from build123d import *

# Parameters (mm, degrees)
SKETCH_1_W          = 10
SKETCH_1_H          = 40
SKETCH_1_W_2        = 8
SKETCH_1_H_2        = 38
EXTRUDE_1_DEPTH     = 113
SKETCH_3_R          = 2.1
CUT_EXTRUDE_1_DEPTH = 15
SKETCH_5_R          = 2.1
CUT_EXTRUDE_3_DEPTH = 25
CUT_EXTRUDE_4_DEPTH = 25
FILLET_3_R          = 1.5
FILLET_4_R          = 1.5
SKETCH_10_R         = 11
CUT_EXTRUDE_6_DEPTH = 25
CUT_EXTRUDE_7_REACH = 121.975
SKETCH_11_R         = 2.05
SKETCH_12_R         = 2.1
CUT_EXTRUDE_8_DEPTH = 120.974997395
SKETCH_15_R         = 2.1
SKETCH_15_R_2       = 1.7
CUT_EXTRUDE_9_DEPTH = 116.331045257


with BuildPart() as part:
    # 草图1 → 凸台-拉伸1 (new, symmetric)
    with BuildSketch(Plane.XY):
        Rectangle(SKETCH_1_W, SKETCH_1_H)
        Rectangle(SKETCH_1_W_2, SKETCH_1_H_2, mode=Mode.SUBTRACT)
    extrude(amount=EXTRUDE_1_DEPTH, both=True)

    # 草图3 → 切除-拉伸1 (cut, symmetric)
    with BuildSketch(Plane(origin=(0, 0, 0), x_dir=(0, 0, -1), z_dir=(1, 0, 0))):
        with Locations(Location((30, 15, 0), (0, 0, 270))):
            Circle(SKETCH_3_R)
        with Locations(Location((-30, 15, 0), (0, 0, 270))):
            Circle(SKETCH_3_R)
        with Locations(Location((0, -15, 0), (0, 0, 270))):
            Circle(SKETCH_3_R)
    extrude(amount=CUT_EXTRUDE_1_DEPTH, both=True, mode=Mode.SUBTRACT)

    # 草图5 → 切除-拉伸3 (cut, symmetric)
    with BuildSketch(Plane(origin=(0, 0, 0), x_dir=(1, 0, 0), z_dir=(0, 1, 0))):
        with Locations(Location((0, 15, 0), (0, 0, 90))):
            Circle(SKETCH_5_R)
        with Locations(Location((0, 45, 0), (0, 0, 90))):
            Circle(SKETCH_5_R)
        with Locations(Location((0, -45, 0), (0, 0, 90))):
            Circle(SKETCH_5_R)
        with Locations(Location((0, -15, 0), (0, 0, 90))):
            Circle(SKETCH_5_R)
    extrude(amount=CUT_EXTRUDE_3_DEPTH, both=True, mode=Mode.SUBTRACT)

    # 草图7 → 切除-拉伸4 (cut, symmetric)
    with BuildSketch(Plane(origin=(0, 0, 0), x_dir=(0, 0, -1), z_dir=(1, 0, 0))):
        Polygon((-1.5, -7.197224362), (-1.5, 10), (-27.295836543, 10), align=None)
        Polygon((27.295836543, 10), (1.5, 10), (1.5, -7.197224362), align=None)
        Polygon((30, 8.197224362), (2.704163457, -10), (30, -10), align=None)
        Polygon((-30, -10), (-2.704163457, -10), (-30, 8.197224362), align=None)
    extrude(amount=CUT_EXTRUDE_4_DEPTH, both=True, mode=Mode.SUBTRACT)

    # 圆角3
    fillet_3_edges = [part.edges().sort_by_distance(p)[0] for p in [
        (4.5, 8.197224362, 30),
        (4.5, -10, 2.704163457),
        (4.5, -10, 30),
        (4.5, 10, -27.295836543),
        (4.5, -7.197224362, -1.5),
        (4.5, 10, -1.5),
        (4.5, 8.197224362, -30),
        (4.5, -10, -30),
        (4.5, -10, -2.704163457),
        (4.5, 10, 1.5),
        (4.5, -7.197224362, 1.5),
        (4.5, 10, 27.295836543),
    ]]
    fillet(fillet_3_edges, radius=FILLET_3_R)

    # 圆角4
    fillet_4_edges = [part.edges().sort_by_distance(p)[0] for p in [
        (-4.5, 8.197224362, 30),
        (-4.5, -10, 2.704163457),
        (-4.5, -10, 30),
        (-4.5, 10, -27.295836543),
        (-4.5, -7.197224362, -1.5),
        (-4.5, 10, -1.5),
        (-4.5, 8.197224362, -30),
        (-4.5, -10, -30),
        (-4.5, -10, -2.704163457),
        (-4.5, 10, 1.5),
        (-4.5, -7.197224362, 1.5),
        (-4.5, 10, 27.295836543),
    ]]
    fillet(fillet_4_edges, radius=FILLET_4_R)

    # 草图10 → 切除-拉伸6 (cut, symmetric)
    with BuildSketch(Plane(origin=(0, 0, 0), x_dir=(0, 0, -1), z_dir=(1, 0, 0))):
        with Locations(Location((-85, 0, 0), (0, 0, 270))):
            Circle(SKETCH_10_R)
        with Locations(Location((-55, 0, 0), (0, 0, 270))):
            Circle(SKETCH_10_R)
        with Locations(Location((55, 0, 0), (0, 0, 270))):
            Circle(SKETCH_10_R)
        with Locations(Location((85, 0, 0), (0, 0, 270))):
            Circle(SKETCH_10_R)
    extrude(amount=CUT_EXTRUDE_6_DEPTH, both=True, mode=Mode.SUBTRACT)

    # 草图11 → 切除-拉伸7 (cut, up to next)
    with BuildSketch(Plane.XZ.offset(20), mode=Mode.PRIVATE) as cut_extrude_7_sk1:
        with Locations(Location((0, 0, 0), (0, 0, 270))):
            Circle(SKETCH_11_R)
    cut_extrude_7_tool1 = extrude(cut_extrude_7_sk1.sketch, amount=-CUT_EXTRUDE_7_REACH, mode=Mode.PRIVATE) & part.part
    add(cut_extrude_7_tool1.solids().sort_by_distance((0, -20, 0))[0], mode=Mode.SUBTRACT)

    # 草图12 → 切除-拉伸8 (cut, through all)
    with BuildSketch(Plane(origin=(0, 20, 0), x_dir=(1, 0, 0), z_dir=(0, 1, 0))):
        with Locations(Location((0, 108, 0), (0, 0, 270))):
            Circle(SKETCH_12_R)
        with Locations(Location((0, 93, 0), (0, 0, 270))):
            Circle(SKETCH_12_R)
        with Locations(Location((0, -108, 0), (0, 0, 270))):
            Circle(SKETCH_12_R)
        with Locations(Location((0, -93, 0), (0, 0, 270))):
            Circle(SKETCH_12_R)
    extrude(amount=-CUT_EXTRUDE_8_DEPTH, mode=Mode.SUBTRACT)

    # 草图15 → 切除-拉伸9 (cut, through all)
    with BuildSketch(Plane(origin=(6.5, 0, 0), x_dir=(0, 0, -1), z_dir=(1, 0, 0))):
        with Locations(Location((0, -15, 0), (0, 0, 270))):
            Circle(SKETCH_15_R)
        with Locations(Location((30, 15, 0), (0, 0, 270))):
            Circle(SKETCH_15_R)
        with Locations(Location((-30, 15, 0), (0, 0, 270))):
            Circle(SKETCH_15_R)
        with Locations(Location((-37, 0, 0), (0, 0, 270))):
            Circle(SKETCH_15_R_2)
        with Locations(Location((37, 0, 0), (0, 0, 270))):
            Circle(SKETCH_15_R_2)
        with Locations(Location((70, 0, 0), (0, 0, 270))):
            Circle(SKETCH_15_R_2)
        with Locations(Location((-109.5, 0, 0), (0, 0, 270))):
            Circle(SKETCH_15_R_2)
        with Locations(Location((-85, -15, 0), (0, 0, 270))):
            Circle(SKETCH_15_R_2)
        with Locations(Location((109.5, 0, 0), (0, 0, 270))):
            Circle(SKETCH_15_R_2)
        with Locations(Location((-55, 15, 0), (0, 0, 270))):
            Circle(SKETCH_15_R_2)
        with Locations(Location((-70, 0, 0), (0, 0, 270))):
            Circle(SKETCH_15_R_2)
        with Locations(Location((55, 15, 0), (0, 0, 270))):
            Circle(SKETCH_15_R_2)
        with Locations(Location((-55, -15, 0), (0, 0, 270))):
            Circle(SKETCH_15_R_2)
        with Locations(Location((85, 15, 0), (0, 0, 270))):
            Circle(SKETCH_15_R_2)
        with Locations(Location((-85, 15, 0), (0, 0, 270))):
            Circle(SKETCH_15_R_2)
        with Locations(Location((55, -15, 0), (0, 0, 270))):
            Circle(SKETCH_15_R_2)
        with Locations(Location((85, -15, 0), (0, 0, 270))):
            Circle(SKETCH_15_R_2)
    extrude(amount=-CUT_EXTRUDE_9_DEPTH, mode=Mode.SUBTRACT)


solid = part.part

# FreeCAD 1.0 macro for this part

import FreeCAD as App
import Part
import Sketcher
Q = App.Units.Quantity


def edges_at(feature, points):
    """Names of the edges that pass closest to the given points."""
    edges = feature.Shape.Edges
    near = lambda p: min(range(len(edges)), key=lambda i: edges[i].distToShape(Part.Vertex(*p))[0])
    return sorted({f"Edge{near(p) + 1}" for p in points})

doc = App.newDocument("Part")
params = doc.addObject("Spreadsheet::Sheet", "Params")
for row, (alias, value) in enumerate([
    ("sketch1_width", "10 mm"),
    ("sketch1_width2", "8 mm"),
    ("sketch1_height", "40 mm"),
    ("sketch1_height2", "38 mm"),
    ("pad1_length", "226 mm"),
    ("sketch2_diameter", "4.2 mm"),
    ("pocket1_length", "30 mm"),
    ("sketch3_diameter", "4.2 mm"),
    ("pocket2_length", "50 mm"),
    ("pocket3_length", "50 mm"),
    ("fillet_radius", "1.5 mm"),
    ("fillet2_radius", "1.5 mm"),
    ("sketch5_diameter", "22 mm"),
    ("pocket4_length", "50 mm"),
    ("sketch6_diameter", "4.1 mm"),
    ("sketch7_diameter", "4.2 mm"),
    ("sketch8_diameter", "4.2 mm"),
    ("sketch8_diameter2", "3.4 mm"),
], start=1):
    params.set(f"A{row}", alias)
    params.set(f"B{row}", "=" + value)
    params.setAlias(f"B{row}", alias)

body = doc.addObject("PartDesign::Body", "Body")

# Sketch on XY plane
sketch1 = doc.addObject("Sketcher::SketchObject", "Sketch")
body.addObject(sketch1)
sketch1.AttachmentSupport = (doc.XY_Plane, [""])
sketch1.MapMode = "FlatFace"
sketch1.addGeometry(Part.LineSegment(App.Vector(-5, 20, 0), App.Vector(-5, -20, 0)), False)
sketch1.addGeometry(Part.LineSegment(App.Vector(-5, -20, 0), App.Vector(5, -20, 0)), False)
sketch1.addGeometry(Part.LineSegment(App.Vector(5, -20, 0), App.Vector(5, 20, 0)), False)
sketch1.addGeometry(Part.LineSegment(App.Vector(5, 20, 0), App.Vector(-5, 20, 0)), False)
sketch1.addGeometry(Part.LineSegment(App.Vector(4, -19, 0), App.Vector(-4, -19, 0)), False)
sketch1.addGeometry(Part.LineSegment(App.Vector(-4, -19, 0), App.Vector(-4, 19, 0)), False)
sketch1.addGeometry(Part.LineSegment(App.Vector(-4, 19, 0), App.Vector(4, 19, 0)), False)
sketch1.addGeometry(Part.LineSegment(App.Vector(4, 19, 0), App.Vector(4, -19, 0)), False)
sketch1.addConstraint(Sketcher.Constraint("Coincident", 0, 2, 1, 1))
sketch1.addConstraint(Sketcher.Constraint("Coincident", 1, 2, 2, 1))
sketch1.addConstraint(Sketcher.Constraint("Coincident", 2, 2, 3, 1))
sketch1.addConstraint(Sketcher.Constraint("Coincident", 3, 2, 0, 1))
sketch1.addConstraint(Sketcher.Constraint("Coincident", 4, 2, 5, 1))
sketch1.addConstraint(Sketcher.Constraint("Coincident", 5, 2, 6, 1))
sketch1.addConstraint(Sketcher.Constraint("Coincident", 6, 2, 7, 1))
sketch1.addConstraint(Sketcher.Constraint("Coincident", 7, 2, 4, 1))
sketch1.addConstraint(Sketcher.Constraint("Vertical", 0))
sketch1.addConstraint(Sketcher.Constraint("Horizontal", 1))
sketch1.addConstraint(Sketcher.Constraint("Vertical", 2))
sketch1.addConstraint(Sketcher.Constraint("Horizontal", 3))
sketch1.addConstraint(Sketcher.Constraint("Horizontal", 4))
sketch1.addConstraint(Sketcher.Constraint("Vertical", 5))
sketch1.addConstraint(Sketcher.Constraint("Horizontal", 6))
sketch1.addConstraint(Sketcher.Constraint("Vertical", 7))
sketch1.addConstraint(Sketcher.Constraint("Symmetric", 0, 2, 2, 2, -1, 1))
sketch1.addConstraint(Sketcher.Constraint("Symmetric", 4, 2, 6, 2, -1, 1))
sketch1.addConstraint(Sketcher.Constraint("DistanceX", 1, 1, 1, 2, Q("10 mm")))
sketch1.addConstraint(Sketcher.Constraint("DistanceX", 4, 2, 4, 1, Q("8 mm")))
sketch1.addConstraint(Sketcher.Constraint("DistanceY", 0, 2, 0, 1, Q("40 mm")))
sketch1.addConstraint(Sketcher.Constraint("DistanceY", 5, 1, 5, 2, Q("38 mm")))
sketch1.setExpression("Constraints[18]", "Params.sketch1_width")
sketch1.setExpression("Constraints[19]", "Params.sketch1_width2")
sketch1.setExpression("Constraints[20]", "Params.sketch1_height")
sketch1.setExpression("Constraints[21]", "Params.sketch1_height2")
pad1 = doc.addObject("PartDesign::Pad", "Pad")
body.addObject(pad1)
pad1.Profile = sketch1
pad1.setExpression("Length", "Params.pad1_length")
pad1.Midplane = True

# Sketch on YZ plane
sketch2 = doc.addObject("Sketcher::SketchObject", "Sketch001")
body.addObject(sketch2)
sketch2.AttachmentSupport = (doc.YZ_Plane, [""])
sketch2.MapMode = "FlatFace"
sketch2.addGeometry(Part.Circle(App.Vector(15, -30, 0), App.Vector(0, 0, 1), 2.1), False)
sketch2.addGeometry(Part.Circle(App.Vector(15, 30, 0), App.Vector(0, 0, 1), 2.1), False)
sketch2.addGeometry(Part.Circle(App.Vector(-15, 0, 0), App.Vector(0, 0, 1), 2.1), False)
sketch2.addConstraint(Sketcher.Constraint("Equal", 0, 1))
sketch2.addConstraint(Sketcher.Constraint("Equal", 1, 2))
sketch2.addConstraint(Sketcher.Constraint("Symmetric", 0, 3, 1, 3, -1))
sketch2.addConstraint(Sketcher.Constraint("PointOnObject", 2, 3, -1))
sketch2.addConstraint(Sketcher.Constraint("Diameter", 0, Q("4.2 mm")))
sketch2.addConstraint(Sketcher.Constraint("DistanceX", -1, 1, 0, 3, Q("15 mm")))
sketch2.addConstraint(Sketcher.Constraint("DistanceY", 0, 3, -1, 1, Q("30 mm")))
sketch2.addConstraint(Sketcher.Constraint("DistanceX", 2, 3, -1, 1, Q("15 mm")))
sketch2.setExpression("Constraints[4]", "Params.sketch2_diameter")
pocket1 = doc.addObject("PartDesign::Pocket", "Pocket")
body.addObject(pocket1)
pocket1.Profile = sketch2
pocket1.setExpression("Length", "Params.pocket1_length")
pocket1.Midplane = True

# Sketch on XZ plane
sketch3 = doc.addObject("Sketcher::SketchObject", "Sketch002")
body.addObject(sketch3)
sketch3.AttachmentSupport = (doc.XZ_Plane, [""])
sketch3.MapMode = "FlatFace"
sketch3.addGeometry(Part.Circle(App.Vector(0, -15, 0), App.Vector(0, 0, 1), 2.1), False)
sketch3.addGeometry(Part.Circle(App.Vector(0, -45, 0), App.Vector(0, 0, 1), 2.1), False)
sketch3.addGeometry(Part.Circle(App.Vector(0, 45, 0), App.Vector(0, 0, 1), 2.1), False)
sketch3.addGeometry(Part.Circle(App.Vector(0, 15, 0), App.Vector(0, 0, 1), 2.1), False)
sketch3.addConstraint(Sketcher.Constraint("Equal", 0, 1))
sketch3.addConstraint(Sketcher.Constraint("Equal", 1, 2))
sketch3.addConstraint(Sketcher.Constraint("Equal", 2, 3))
sketch3.addConstraint(Sketcher.Constraint("Symmetric", 1, 3, 2, 3, -1, 1))
sketch3.addConstraint(Sketcher.Constraint("Symmetric", 0, 3, 3, 3, -1, 1))
sketch3.addConstraint(Sketcher.Constraint("PointOnObject", 0, 3, -2))
sketch3.addConstraint(Sketcher.Constraint("PointOnObject", 1, 3, -2))
sketch3.addConstraint(Sketcher.Constraint("Diameter", 0, Q("4.2 mm")))
sketch3.addConstraint(Sketcher.Constraint("DistanceY", 0, 3, -1, 1, Q("15 mm")))
sketch3.addConstraint(Sketcher.Constraint("DistanceY", 1, 3, -1, 1, Q("45 mm")))
sketch3.setExpression("Constraints[7]", "Params.sketch3_diameter")
pocket2 = doc.addObject("PartDesign::Pocket", "Pocket001")
body.addObject(pocket2)
pocket2.Profile = sketch3
pocket2.setExpression("Length", "Params.pocket2_length")
pocket2.Midplane = True

# Sketch on YZ plane
sketch4 = doc.addObject("Sketcher::SketchObject", "Sketch003")
body.addObject(sketch4)
sketch4.AttachmentSupport = (doc.YZ_Plane, [""])
sketch4.MapMode = "FlatFace"
sketch4.addGeometry(Part.LineSegment(App.Vector(-7, 2, 0), App.Vector(10, 2, 0)), False)
sketch4.addGeometry(Part.LineSegment(App.Vector(10, 2, 0), App.Vector(10, 27, 0)), False)
sketch4.addGeometry(Part.LineSegment(App.Vector(10, 27, 0), App.Vector(-7, 2, 0)), False)
sketch4.addGeometry(Part.LineSegment(App.Vector(10, -27, 0), App.Vector(10, -2, 0)), False)
sketch4.addGeometry(Part.LineSegment(App.Vector(10, -2, 0), App.Vector(-7, -2, 0)), False)
sketch4.addGeometry(Part.LineSegment(App.Vector(-7, -2, 0), App.Vector(10, -27, 0)), False)
sketch4.addGeometry(Part.LineSegment(App.Vector(8, -30, 0), App.Vector(-10, -3, 0)), False)
sketch4.addGeometry(Part.LineSegment(App.Vector(-10, -3, 0), App.Vector(-10, -30, 0)), False)
sketch4.addGeometry(Part.LineSegment(App.Vector(-10, -30, 0), App.Vector(8, -30, 0)), False)
sketch4.addGeometry(Part.LineSegment(App.Vector(-10, 30, 0), App.Vector(-10, 3, 0)), False)
sketch4.addGeometry(Part.LineSegment(App.Vector(-10, 3, 0), App.Vector(8, 30, 0)), False)
sketch4.addGeometry(Part.LineSegment(App.Vector(8, 30, 0), App.Vector(-10, 30, 0)), False)
sketch4.addConstraint(Sketcher.Constraint("Coincident", 0, 2, 1, 1))
sketch4.addConstraint(Sketcher.Constraint("Coincident", 1, 2, 2, 1))
sketch4.addConstraint(Sketcher.Constraint("Coincident", 2, 2, 0, 1))
sketch4.addConstraint(Sketcher.Constraint("Coincident", 3, 2, 4, 1))
sketch4.addConstraint(Sketcher.Constraint("Coincident", 4, 2, 5, 1))
sketch4.addConstraint(Sketcher.Constraint("Coincident", 5, 2, 3, 1))
sketch4.addConstraint(Sketcher.Constraint("Coincident", 6, 2, 7, 1))
sketch4.addConstraint(Sketcher.Constraint("Coincident", 7, 2, 8, 1))
sketch4.addConstraint(Sketcher.Constraint("Coincident", 8, 2, 6, 1))
sketch4.addConstraint(Sketcher.Constraint("Coincident", 9, 2, 10, 1))
sketch4.addConstraint(Sketcher.Constraint("Coincident", 10, 2, 11, 1))
sketch4.addConstraint(Sketcher.Constraint("Coincident", 11, 2, 9, 1))
sketch4.addConstraint(Sketcher.Constraint("Horizontal", 0))
sketch4.addConstraint(Sketcher.Constraint("Vertical", 1))
sketch4.addConstraint(Sketcher.Constraint("Vertical", 3))
sketch4.addConstraint(Sketcher.Constraint("Horizontal", 4))
sketch4.addConstraint(Sketcher.Constraint("Vertical", 7))
sketch4.addConstraint(Sketcher.Constraint("Horizontal", 8))
sketch4.addConstraint(Sketcher.Constraint("Vertical", 9))
sketch4.addConstraint(Sketcher.Constraint("Horizontal", 11))
sketch4.addConstraint(Sketcher.Constraint("Symmetric", 0, 2, 3, 2, -1))
sketch4.addConstraint(Sketcher.Constraint("Symmetric", 6, 2, 9, 2, -1))
sketch4.addConstraint(Sketcher.Constraint("Symmetric", 8, 2, 10, 2, -1))
sketch4.addConstraint(Sketcher.Constraint("Parallel", 5, 6))
sketch4.addConstraint(Sketcher.Constraint("Parallel", 2, 10))
sketch4.addConstraint(Sketcher.Constraint("Vertical", 2, 2, 4, 2))
sketch4.addConstraint(Sketcher.Constraint("DistanceX", -1, 1, 0, 2, Q("10 mm")))
sketch4.addConstraint(Sketcher.Constraint("DistanceX", 6, 2, -1, 1, Q("10 mm")))
sketch4.addConstraint(Sketcher.Constraint("DistanceY", 7, 2, -1, 1, Q("30 mm")))
sketch4.addConstraint(Sketcher.Constraint("DistanceY", 3, 2, 0, 2, Q("3 mm")))
sketch4.addConstraint(Sketcher.Constraint("DistanceX", 0, 1, 0, 2, Q("17.197224 mm")))
sketch4.addConstraint(Sketcher.Constraint("DistanceX", 8, 1, 8, 2, Q("18.197224 mm")))
sketch4.addConstraint(Sketcher.Constraint("DistanceY", 1, 1, 1, 2, Q("25.795837 mm")))
pocket3 = doc.addObject("PartDesign::Pocket", "Pocket002")
body.addObject(pocket3)
pocket3.Profile = sketch4
pocket3.setExpression("Length", "Params.pocket3_length")
pocket3.Midplane = True
doc.recompute()

fillet = doc.addObject("PartDesign::Fillet", "Fillet")
body.addObject(fillet)
fillet.Base = (pocket3, edges_at(pocket3, [
    (4.5, 8.197, 30),
    (4.5, -10, 2.704),
    (4.5, -10, 30),
    (4.5, 10, -27.296),
    (4.5, -7.197, -1.5),
    (4.5, 10, -1.5),
    (4.5, 8.197, -30),
    (4.5, -10, -30),
    (4.5, -10, -2.704),
    (4.5, 10, 1.5),
    (4.5, -7.197, 1.5),
    (4.5, 10, 27.296),
]))
fillet.setExpression("Radius", "Params.fillet_radius")
doc.recompute()

fillet2 = doc.addObject("PartDesign::Fillet", "Fillet001")
body.addObject(fillet2)
fillet2.Base = (fillet, edges_at(fillet, [
    (-4.5, 8.197, 30),
    (-4.5, -10, 2.704),
    (-4.5, -10, 30),
    (-4.5, 10, -27.296),
    (-4.5, -7.197, -1.5),
    (-4.5, 10, -1.5),
    (-4.5, 8.197, -30),
    (-4.5, -10, -30),
    (-4.5, -10, -2.704),
    (-4.5, 10, 1.5),
    (-4.5, -7.197, 1.5),
    (-4.5, 10, 27.296),
]))
fillet2.setExpression("Radius", "Params.fillet2_radius")

# Sketch on YZ plane
sketch5 = doc.addObject("Sketcher::SketchObject", "Sketch004")
body.addObject(sketch5)
sketch5.AttachmentSupport = (doc.YZ_Plane, [""])
sketch5.MapMode = "FlatFace"
sketch5.addGeometry(Part.Circle(App.Vector(0, 85, 0), App.Vector(0, 0, 1), 11), False)
sketch5.addGeometry(Part.Circle(App.Vector(0, 55, 0), App.Vector(0, 0, 1), 11), False)
sketch5.addGeometry(Part.Circle(App.Vector(0, -55, 0), App.Vector(0, 0, 1), 11), False)
sketch5.addGeometry(Part.Circle(App.Vector(0, -85, 0), App.Vector(0, 0, 1), 11), False)
sketch5.addConstraint(Sketcher.Constraint("Equal", 0, 1))
sketch5.addConstraint(Sketcher.Constraint("Equal", 1, 2))
sketch5.addConstraint(Sketcher.Constraint("Equal", 2, 3))
sketch5.addConstraint(Sketcher.Constraint("Symmetric", 1, 3, 2, 3, -1, 1))
sketch5.addConstraint(Sketcher.Constraint("Symmetric", 0, 3, 3, 3, -1, 1))
sketch5.addConstraint(Sketcher.Constraint("PointOnObject", 0, 3, -2))
sketch5.addConstraint(Sketcher.Constraint("PointOnObject", 1, 3, -2))
sketch5.addConstraint(Sketcher.Constraint("Diameter", 0, Q("22 mm")))
sketch5.addConstraint(Sketcher.Constraint("DistanceY", -1, 1, 0, 3, Q("85 mm")))
sketch5.addConstraint(Sketcher.Constraint("DistanceY", -1, 1, 1, 3, Q("55 mm")))
sketch5.setExpression("Constraints[7]", "Params.sketch5_diameter")
pocket4 = doc.addObject("PartDesign::Pocket", "Pocket003")
body.addObject(pocket4)
pocket4.Profile = sketch5
pocket4.setExpression("Length", "Params.pocket4_length")
pocket4.Midplane = True

# Sketch on XZ plane
sketch6 = doc.addObject("Sketcher::SketchObject", "Sketch005")
body.addObject(sketch6)
sketch6.AttachmentSupport = (doc.XZ_Plane, [""])
sketch6.MapMode = "FlatFace"
sketch6.AttachmentOffset = App.Placement(App.Vector(0, 0, 20), App.Rotation())
sketch6.addGeometry(Part.Circle(App.Vector(0, 0, 0), App.Vector(0, 0, 1), 2), False)
sketch6.addConstraint(Sketcher.Constraint("Coincident", 0, 3, -1, 1))
sketch6.addConstraint(Sketcher.Constraint("Diameter", 0, Q("4.1 mm")))
sketch6.setExpression("Constraints[1]", "Params.sketch6_diameter")
pocket5 = doc.addObject("PartDesign::Pocket", "Pocket004")
body.addObject(pocket5)
pocket5.Profile = sketch6
pocket5.Type = "UpToFirst"

# Sketch on XZ plane
sketch7 = doc.addObject("Sketcher::SketchObject", "Sketch006")
body.addObject(sketch7)
sketch7.AttachmentSupport = (doc.XZ_Plane, [""])
sketch7.MapMode = "FlatFace"
sketch7.AttachmentOffset = App.Placement(App.Vector(0, 0, -20), App.Rotation())
sketch7.addGeometry(Part.Circle(App.Vector(0, -108, 0), App.Vector(0, 0, 1), 2.1), False)
sketch7.addGeometry(Part.Circle(App.Vector(0, -93, 0), App.Vector(0, 0, 1), 2.1), False)
sketch7.addGeometry(Part.Circle(App.Vector(0, 108, 0), App.Vector(0, 0, 1), 2.1), False)
sketch7.addGeometry(Part.Circle(App.Vector(0, 93, 0), App.Vector(0, 0, 1), 2.1), False)
sketch7.addConstraint(Sketcher.Constraint("Equal", 0, 1))
sketch7.addConstraint(Sketcher.Constraint("Equal", 1, 2))
sketch7.addConstraint(Sketcher.Constraint("Equal", 2, 3))
sketch7.addConstraint(Sketcher.Constraint("Symmetric", 0, 3, 2, 3, -1, 1))
sketch7.addConstraint(Sketcher.Constraint("Symmetric", 1, 3, 3, 3, -1, 1))
sketch7.addConstraint(Sketcher.Constraint("PointOnObject", 0, 3, -2))
sketch7.addConstraint(Sketcher.Constraint("PointOnObject", 1, 3, -2))
sketch7.addConstraint(Sketcher.Constraint("Diameter", 0, Q("4.2 mm")))
sketch7.addConstraint(Sketcher.Constraint("DistanceY", 0, 3, -1, 1, Q("108 mm")))
sketch7.addConstraint(Sketcher.Constraint("DistanceY", 1, 3, -1, 1, Q("93 mm")))
sketch7.setExpression("Constraints[7]", "Params.sketch7_diameter")
pocket6 = doc.addObject("PartDesign::Pocket", "Pocket005")
body.addObject(pocket6)
pocket6.Profile = sketch7
pocket6.Type = "ThroughAll"
pocket6.Reversed = True

# Sketch on YZ plane
sketch8 = doc.addObject("Sketcher::SketchObject", "Sketch007")
body.addObject(sketch8)
sketch8.AttachmentSupport = (doc.YZ_Plane, [""])
sketch8.MapMode = "FlatFace"
sketch8.AttachmentOffset = App.Placement(App.Vector(0, 0, 6.5), App.Rotation())
sketch8.addGeometry(Part.Circle(App.Vector(-15, 0, 0), App.Vector(0, 0, 1), 2.1), False)
sketch8.addGeometry(Part.Circle(App.Vector(15, -30, 0), App.Vector(0, 0, 1), 2.1), False)
sketch8.addGeometry(Part.Circle(App.Vector(15, 30, 0), App.Vector(0, 0, 1), 2.1), False)
sketch8.addGeometry(Part.Circle(App.Vector(0, 37, 0), App.Vector(0, 0, 1), 1.7), False)
sketch8.addGeometry(Part.Circle(App.Vector(0, -37, 0), App.Vector(0, 0, 1), 1.7), False)
sketch8.addGeometry(Part.Circle(App.Vector(0, -70, 0), App.Vector(0, 0, 1), 1.7), False)
sketch8.addGeometry(Part.Circle(App.Vector(0, 109.5, 0), App.Vector(0, 0, 1), 1.7), False)
sketch8.addGeometry(Part.Circle(App.Vector(-15, 85, 0), App.Vector(0, 0, 1), 1.7), False)
sketch8.addGeometry(Part.Circle(App.Vector(0, -109.5, 0), App.Vector(0, 0, 1), 1.7), False)
sketch8.addGeometry(Part.Circle(App.Vector(15, 55, 0), App.Vector(0, 0, 1), 1.7), False)
sketch8.addGeometry(Part.Circle(App.Vector(0, 70, 0), App.Vector(0, 0, 1), 1.7), False)
sketch8.addGeometry(Part.Circle(App.Vector(15, -55, 0), App.Vector(0, 0, 1), 1.7), False)
sketch8.addGeometry(Part.Circle(App.Vector(-15, 55, 0), App.Vector(0, 0, 1), 1.7), False)
sketch8.addGeometry(Part.Circle(App.Vector(15, -85, 0), App.Vector(0, 0, 1), 1.7), False)
sketch8.addGeometry(Part.Circle(App.Vector(15, 85, 0), App.Vector(0, 0, 1), 1.7), False)
sketch8.addGeometry(Part.Circle(App.Vector(-15, -55, 0), App.Vector(0, 0, 1), 1.7), False)
sketch8.addGeometry(Part.Circle(App.Vector(-15, -85, 0), App.Vector(0, 0, 1), 1.7), False)
sketch8.addConstraint(Sketcher.Constraint("Equal", 0, 1))
sketch8.addConstraint(Sketcher.Constraint("Equal", 1, 2))
sketch8.addConstraint(Sketcher.Constraint("Equal", 3, 4))
sketch8.addConstraint(Sketcher.Constraint("Equal", 4, 5))
sketch8.addConstraint(Sketcher.Constraint("Equal", 5, 6))
sketch8.addConstraint(Sketcher.Constraint("Equal", 6, 7))
sketch8.addConstraint(Sketcher.Constraint("Equal", 7, 8))
sketch8.addConstraint(Sketcher.Constraint("Equal", 8, 9))
sketch8.addConstraint(Sketcher.Constraint("Equal", 9, 10))
sketch8.addConstraint(Sketcher.Constraint("Equal", 10, 11))
sketch8.addConstraint(Sketcher.Constraint("Equal", 11, 12))
sketch8.addConstraint(Sketcher.Constraint("Equal", 12, 13))
sketch8.addConstraint(Sketcher.Constraint("Equal", 13, 14))
sketch8.addConstraint(Sketcher.Constraint("Equal", 14, 15))
sketch8.addConstraint(Sketcher.Constraint("Equal", 15, 16))
sketch8.addConstraint(Sketcher.Constraint("Symmetric", 3, 3, 4, 3, -1, 1))
sketch8.addConstraint(Sketcher.Constraint("Symmetric", 6, 3, 8, 3, -1, 1))
sketch8.addConstraint(Sketcher.Constraint("Symmetric", 5, 3, 10, 3, -1, 1))
sketch8.addConstraint(Sketcher.Constraint("Symmetric", 11, 3, 12, 3, -1, 1))
sketch8.addConstraint(Sketcher.Constraint("Symmetric", 7, 3, 13, 3, -1, 1))
sketch8.addConstraint(Sketcher.Constraint("Symmetric", 9, 3, 15, 3, -1, 1))
sketch8.addConstraint(Sketcher.Constraint("Symmetric", 14, 3, 16, 3, -1, 1))
sketch8.addConstraint(Sketcher.Constraint("Symmetric", 9, 3, 12, 3, -2))
sketch8.addConstraint(Sketcher.Constraint("Symmetric", 7, 3, 14, 3, -2))
sketch8.addConstraint(Sketcher.Constraint("Symmetric", 1, 3, 2, 3, -1))
sketch8.addConstraint(Sketcher.Constraint("PointOnObject", 0, 3, -1))
sketch8.addConstraint(Sketcher.Constraint("PointOnObject", 3, 3, -2))
sketch8.addConstraint(Sketcher.Constraint("PointOnObject", 5, 3, -2))
sketch8.addConstraint(Sketcher.Constraint("PointOnObject", 6, 3, -2))
sketch8.addConstraint(Sketcher.Constraint("Vertical", 0, 3, 7, 3))
sketch8.addConstraint(Sketcher.Constraint("Vertical", 2, 3, 9, 3))
sketch8.addConstraint(Sketcher.Constraint("Vertical", 7, 3, 12, 3))
sketch8.addConstraint(Sketcher.Constraint("Diameter", 0, Q("4.2 mm")))
sketch8.addConstraint(Sketcher.Constraint("Diameter", 3, Q("3.4 mm")))
sketch8.addConstraint(Sketcher.Constraint("DistanceX", 0, 3, -1, 1, Q("15 mm")))
sketch8.addConstraint(Sketcher.Constraint("DistanceY", 1, 3, -1, 1, Q("30 mm")))
sketch8.addConstraint(Sketcher.Constraint("DistanceY", -1, 1, 3, 3, Q("37 mm")))
sketch8.addConstraint(Sketcher.Constraint("DistanceY", 5, 3, -1, 1, Q("70 mm")))
sketch8.addConstraint(Sketcher.Constraint("DistanceY", -1, 1, 7, 3, Q("85 mm")))
sketch8.addConstraint(Sketcher.Constraint("DistanceY", -1, 1, 9, 3, Q("55 mm")))
sketch8.addConstraint(Sketcher.Constraint("DistanceY", -1, 1, 6, 3, Q("109.5 mm")))
sketch8.setExpression("Constraints[32]", "Params.sketch8_diameter")
sketch8.setExpression("Constraints[33]", "Params.sketch8_diameter2")
pocket7 = doc.addObject("PartDesign::Pocket", "Pocket006")
body.addObject(pocket7)
pocket7.Profile = sketch8
pocket7.Type = "ThroughAll"

doc.recompute()
